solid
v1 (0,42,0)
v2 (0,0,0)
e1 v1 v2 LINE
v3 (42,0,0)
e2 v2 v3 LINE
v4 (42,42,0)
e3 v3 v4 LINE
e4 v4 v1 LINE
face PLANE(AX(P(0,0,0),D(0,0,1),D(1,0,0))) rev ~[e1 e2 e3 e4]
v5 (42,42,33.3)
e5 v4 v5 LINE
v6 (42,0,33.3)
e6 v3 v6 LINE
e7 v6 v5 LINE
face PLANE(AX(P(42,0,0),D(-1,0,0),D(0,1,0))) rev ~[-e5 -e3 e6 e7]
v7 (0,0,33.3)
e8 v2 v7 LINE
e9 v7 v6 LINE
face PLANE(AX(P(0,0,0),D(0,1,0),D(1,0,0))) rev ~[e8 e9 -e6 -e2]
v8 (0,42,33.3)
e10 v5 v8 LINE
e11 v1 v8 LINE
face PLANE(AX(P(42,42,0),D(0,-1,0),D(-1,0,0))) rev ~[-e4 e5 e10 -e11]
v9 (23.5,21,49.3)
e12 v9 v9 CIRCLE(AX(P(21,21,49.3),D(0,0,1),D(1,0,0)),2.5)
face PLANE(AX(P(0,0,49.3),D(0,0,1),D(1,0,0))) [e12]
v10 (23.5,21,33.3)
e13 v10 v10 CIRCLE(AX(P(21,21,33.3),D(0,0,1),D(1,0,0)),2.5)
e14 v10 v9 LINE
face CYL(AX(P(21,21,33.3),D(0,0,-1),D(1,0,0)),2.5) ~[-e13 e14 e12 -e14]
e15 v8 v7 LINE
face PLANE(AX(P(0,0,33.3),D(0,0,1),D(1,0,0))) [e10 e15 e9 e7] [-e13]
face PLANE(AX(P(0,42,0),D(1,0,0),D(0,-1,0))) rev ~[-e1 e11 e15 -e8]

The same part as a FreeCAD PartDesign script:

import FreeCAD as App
import Part
import Sketcher
from FreeCAD import Vector


def add_polygon(sketch, points):
    """Adds a closed chain of lines whose ends are joined by coincident constraints."""
    first, n = sketch.GeometryCount, len(points)
    for a, b in zip(points, points[1:] + points[:1]):
        sketch.addGeometry(Part.LineSegment(App.Vector(*a, 0), App.Vector(*b, 0)), False)
    for i in range(n):
        sketch.addConstraint(Sketcher.Constraint("Coincident", first + i, 2, first + (i + 1) % n, 1))

doc = App.newDocument("Part")
body = doc.addObject("PartDesign::Body", "Body")

sketch1 = doc.addObject("Sketcher::SketchObject", "Sketch")
body.addObject(sketch1)
sketch1.AttachmentSupport = (doc.XY_Plane, [""])
sketch1.MapMode = "FlatFace"
add_polygon(sketch1, [(0, 42), (0, 0), (42, 0), (42, 42)])
sketch1.addConstraint([
    Sketcher.Constraint("Vertical", 0),
    Sketcher.Constraint("Horizontal", 1),
    Sketcher.Constraint("Vertical", 2),
    Sketcher.Constraint("Horizontal", 3),
    Sketcher.Constraint("Coincident", 0, 2, -1, 1),
    Sketcher.Constraint("Equal", 3, 0),
    Sketcher.Constraint("DistanceX", 1, 1, 1, 2, 42.0),
])
pad1 = doc.addObject("PartDesign::Pad", "Pad")
body.addObject(pad1)
pad1.Profile = sketch1
pad1.Length = 33.3

sketch2 = doc.addObject("Sketcher::SketchObject", "Sketch001")
body.addObject(sketch2)
sketch2.AttachmentSupport = (doc.XY_Plane, [""])
sketch2.MapMode = "FlatFace"
sketch2.AttachmentOffset = App.Placement(Vector(0, 0, 33.3), App.Rotation())
sketch2.addGeometry(Part.Circle(Vector(21, 21, 0), Vector(0, 0, 1), 2.5), False)
sketch2.addConstraint([
    Sketcher.Constraint("Diameter", 0, 5.0),
    Sketcher.Constraint("DistanceX", -1, 1, 0, 3, 21.0),
    Sketcher.Constraint("DistanceY", -1, 1, 0, 3, 21.0),
])
pad2 = doc.addObject("PartDesign::Pad", "Pad001")
body.addObject(pad2)
pad2.Profile = sketch2
pad2.Length = 16

doc.recompute()
